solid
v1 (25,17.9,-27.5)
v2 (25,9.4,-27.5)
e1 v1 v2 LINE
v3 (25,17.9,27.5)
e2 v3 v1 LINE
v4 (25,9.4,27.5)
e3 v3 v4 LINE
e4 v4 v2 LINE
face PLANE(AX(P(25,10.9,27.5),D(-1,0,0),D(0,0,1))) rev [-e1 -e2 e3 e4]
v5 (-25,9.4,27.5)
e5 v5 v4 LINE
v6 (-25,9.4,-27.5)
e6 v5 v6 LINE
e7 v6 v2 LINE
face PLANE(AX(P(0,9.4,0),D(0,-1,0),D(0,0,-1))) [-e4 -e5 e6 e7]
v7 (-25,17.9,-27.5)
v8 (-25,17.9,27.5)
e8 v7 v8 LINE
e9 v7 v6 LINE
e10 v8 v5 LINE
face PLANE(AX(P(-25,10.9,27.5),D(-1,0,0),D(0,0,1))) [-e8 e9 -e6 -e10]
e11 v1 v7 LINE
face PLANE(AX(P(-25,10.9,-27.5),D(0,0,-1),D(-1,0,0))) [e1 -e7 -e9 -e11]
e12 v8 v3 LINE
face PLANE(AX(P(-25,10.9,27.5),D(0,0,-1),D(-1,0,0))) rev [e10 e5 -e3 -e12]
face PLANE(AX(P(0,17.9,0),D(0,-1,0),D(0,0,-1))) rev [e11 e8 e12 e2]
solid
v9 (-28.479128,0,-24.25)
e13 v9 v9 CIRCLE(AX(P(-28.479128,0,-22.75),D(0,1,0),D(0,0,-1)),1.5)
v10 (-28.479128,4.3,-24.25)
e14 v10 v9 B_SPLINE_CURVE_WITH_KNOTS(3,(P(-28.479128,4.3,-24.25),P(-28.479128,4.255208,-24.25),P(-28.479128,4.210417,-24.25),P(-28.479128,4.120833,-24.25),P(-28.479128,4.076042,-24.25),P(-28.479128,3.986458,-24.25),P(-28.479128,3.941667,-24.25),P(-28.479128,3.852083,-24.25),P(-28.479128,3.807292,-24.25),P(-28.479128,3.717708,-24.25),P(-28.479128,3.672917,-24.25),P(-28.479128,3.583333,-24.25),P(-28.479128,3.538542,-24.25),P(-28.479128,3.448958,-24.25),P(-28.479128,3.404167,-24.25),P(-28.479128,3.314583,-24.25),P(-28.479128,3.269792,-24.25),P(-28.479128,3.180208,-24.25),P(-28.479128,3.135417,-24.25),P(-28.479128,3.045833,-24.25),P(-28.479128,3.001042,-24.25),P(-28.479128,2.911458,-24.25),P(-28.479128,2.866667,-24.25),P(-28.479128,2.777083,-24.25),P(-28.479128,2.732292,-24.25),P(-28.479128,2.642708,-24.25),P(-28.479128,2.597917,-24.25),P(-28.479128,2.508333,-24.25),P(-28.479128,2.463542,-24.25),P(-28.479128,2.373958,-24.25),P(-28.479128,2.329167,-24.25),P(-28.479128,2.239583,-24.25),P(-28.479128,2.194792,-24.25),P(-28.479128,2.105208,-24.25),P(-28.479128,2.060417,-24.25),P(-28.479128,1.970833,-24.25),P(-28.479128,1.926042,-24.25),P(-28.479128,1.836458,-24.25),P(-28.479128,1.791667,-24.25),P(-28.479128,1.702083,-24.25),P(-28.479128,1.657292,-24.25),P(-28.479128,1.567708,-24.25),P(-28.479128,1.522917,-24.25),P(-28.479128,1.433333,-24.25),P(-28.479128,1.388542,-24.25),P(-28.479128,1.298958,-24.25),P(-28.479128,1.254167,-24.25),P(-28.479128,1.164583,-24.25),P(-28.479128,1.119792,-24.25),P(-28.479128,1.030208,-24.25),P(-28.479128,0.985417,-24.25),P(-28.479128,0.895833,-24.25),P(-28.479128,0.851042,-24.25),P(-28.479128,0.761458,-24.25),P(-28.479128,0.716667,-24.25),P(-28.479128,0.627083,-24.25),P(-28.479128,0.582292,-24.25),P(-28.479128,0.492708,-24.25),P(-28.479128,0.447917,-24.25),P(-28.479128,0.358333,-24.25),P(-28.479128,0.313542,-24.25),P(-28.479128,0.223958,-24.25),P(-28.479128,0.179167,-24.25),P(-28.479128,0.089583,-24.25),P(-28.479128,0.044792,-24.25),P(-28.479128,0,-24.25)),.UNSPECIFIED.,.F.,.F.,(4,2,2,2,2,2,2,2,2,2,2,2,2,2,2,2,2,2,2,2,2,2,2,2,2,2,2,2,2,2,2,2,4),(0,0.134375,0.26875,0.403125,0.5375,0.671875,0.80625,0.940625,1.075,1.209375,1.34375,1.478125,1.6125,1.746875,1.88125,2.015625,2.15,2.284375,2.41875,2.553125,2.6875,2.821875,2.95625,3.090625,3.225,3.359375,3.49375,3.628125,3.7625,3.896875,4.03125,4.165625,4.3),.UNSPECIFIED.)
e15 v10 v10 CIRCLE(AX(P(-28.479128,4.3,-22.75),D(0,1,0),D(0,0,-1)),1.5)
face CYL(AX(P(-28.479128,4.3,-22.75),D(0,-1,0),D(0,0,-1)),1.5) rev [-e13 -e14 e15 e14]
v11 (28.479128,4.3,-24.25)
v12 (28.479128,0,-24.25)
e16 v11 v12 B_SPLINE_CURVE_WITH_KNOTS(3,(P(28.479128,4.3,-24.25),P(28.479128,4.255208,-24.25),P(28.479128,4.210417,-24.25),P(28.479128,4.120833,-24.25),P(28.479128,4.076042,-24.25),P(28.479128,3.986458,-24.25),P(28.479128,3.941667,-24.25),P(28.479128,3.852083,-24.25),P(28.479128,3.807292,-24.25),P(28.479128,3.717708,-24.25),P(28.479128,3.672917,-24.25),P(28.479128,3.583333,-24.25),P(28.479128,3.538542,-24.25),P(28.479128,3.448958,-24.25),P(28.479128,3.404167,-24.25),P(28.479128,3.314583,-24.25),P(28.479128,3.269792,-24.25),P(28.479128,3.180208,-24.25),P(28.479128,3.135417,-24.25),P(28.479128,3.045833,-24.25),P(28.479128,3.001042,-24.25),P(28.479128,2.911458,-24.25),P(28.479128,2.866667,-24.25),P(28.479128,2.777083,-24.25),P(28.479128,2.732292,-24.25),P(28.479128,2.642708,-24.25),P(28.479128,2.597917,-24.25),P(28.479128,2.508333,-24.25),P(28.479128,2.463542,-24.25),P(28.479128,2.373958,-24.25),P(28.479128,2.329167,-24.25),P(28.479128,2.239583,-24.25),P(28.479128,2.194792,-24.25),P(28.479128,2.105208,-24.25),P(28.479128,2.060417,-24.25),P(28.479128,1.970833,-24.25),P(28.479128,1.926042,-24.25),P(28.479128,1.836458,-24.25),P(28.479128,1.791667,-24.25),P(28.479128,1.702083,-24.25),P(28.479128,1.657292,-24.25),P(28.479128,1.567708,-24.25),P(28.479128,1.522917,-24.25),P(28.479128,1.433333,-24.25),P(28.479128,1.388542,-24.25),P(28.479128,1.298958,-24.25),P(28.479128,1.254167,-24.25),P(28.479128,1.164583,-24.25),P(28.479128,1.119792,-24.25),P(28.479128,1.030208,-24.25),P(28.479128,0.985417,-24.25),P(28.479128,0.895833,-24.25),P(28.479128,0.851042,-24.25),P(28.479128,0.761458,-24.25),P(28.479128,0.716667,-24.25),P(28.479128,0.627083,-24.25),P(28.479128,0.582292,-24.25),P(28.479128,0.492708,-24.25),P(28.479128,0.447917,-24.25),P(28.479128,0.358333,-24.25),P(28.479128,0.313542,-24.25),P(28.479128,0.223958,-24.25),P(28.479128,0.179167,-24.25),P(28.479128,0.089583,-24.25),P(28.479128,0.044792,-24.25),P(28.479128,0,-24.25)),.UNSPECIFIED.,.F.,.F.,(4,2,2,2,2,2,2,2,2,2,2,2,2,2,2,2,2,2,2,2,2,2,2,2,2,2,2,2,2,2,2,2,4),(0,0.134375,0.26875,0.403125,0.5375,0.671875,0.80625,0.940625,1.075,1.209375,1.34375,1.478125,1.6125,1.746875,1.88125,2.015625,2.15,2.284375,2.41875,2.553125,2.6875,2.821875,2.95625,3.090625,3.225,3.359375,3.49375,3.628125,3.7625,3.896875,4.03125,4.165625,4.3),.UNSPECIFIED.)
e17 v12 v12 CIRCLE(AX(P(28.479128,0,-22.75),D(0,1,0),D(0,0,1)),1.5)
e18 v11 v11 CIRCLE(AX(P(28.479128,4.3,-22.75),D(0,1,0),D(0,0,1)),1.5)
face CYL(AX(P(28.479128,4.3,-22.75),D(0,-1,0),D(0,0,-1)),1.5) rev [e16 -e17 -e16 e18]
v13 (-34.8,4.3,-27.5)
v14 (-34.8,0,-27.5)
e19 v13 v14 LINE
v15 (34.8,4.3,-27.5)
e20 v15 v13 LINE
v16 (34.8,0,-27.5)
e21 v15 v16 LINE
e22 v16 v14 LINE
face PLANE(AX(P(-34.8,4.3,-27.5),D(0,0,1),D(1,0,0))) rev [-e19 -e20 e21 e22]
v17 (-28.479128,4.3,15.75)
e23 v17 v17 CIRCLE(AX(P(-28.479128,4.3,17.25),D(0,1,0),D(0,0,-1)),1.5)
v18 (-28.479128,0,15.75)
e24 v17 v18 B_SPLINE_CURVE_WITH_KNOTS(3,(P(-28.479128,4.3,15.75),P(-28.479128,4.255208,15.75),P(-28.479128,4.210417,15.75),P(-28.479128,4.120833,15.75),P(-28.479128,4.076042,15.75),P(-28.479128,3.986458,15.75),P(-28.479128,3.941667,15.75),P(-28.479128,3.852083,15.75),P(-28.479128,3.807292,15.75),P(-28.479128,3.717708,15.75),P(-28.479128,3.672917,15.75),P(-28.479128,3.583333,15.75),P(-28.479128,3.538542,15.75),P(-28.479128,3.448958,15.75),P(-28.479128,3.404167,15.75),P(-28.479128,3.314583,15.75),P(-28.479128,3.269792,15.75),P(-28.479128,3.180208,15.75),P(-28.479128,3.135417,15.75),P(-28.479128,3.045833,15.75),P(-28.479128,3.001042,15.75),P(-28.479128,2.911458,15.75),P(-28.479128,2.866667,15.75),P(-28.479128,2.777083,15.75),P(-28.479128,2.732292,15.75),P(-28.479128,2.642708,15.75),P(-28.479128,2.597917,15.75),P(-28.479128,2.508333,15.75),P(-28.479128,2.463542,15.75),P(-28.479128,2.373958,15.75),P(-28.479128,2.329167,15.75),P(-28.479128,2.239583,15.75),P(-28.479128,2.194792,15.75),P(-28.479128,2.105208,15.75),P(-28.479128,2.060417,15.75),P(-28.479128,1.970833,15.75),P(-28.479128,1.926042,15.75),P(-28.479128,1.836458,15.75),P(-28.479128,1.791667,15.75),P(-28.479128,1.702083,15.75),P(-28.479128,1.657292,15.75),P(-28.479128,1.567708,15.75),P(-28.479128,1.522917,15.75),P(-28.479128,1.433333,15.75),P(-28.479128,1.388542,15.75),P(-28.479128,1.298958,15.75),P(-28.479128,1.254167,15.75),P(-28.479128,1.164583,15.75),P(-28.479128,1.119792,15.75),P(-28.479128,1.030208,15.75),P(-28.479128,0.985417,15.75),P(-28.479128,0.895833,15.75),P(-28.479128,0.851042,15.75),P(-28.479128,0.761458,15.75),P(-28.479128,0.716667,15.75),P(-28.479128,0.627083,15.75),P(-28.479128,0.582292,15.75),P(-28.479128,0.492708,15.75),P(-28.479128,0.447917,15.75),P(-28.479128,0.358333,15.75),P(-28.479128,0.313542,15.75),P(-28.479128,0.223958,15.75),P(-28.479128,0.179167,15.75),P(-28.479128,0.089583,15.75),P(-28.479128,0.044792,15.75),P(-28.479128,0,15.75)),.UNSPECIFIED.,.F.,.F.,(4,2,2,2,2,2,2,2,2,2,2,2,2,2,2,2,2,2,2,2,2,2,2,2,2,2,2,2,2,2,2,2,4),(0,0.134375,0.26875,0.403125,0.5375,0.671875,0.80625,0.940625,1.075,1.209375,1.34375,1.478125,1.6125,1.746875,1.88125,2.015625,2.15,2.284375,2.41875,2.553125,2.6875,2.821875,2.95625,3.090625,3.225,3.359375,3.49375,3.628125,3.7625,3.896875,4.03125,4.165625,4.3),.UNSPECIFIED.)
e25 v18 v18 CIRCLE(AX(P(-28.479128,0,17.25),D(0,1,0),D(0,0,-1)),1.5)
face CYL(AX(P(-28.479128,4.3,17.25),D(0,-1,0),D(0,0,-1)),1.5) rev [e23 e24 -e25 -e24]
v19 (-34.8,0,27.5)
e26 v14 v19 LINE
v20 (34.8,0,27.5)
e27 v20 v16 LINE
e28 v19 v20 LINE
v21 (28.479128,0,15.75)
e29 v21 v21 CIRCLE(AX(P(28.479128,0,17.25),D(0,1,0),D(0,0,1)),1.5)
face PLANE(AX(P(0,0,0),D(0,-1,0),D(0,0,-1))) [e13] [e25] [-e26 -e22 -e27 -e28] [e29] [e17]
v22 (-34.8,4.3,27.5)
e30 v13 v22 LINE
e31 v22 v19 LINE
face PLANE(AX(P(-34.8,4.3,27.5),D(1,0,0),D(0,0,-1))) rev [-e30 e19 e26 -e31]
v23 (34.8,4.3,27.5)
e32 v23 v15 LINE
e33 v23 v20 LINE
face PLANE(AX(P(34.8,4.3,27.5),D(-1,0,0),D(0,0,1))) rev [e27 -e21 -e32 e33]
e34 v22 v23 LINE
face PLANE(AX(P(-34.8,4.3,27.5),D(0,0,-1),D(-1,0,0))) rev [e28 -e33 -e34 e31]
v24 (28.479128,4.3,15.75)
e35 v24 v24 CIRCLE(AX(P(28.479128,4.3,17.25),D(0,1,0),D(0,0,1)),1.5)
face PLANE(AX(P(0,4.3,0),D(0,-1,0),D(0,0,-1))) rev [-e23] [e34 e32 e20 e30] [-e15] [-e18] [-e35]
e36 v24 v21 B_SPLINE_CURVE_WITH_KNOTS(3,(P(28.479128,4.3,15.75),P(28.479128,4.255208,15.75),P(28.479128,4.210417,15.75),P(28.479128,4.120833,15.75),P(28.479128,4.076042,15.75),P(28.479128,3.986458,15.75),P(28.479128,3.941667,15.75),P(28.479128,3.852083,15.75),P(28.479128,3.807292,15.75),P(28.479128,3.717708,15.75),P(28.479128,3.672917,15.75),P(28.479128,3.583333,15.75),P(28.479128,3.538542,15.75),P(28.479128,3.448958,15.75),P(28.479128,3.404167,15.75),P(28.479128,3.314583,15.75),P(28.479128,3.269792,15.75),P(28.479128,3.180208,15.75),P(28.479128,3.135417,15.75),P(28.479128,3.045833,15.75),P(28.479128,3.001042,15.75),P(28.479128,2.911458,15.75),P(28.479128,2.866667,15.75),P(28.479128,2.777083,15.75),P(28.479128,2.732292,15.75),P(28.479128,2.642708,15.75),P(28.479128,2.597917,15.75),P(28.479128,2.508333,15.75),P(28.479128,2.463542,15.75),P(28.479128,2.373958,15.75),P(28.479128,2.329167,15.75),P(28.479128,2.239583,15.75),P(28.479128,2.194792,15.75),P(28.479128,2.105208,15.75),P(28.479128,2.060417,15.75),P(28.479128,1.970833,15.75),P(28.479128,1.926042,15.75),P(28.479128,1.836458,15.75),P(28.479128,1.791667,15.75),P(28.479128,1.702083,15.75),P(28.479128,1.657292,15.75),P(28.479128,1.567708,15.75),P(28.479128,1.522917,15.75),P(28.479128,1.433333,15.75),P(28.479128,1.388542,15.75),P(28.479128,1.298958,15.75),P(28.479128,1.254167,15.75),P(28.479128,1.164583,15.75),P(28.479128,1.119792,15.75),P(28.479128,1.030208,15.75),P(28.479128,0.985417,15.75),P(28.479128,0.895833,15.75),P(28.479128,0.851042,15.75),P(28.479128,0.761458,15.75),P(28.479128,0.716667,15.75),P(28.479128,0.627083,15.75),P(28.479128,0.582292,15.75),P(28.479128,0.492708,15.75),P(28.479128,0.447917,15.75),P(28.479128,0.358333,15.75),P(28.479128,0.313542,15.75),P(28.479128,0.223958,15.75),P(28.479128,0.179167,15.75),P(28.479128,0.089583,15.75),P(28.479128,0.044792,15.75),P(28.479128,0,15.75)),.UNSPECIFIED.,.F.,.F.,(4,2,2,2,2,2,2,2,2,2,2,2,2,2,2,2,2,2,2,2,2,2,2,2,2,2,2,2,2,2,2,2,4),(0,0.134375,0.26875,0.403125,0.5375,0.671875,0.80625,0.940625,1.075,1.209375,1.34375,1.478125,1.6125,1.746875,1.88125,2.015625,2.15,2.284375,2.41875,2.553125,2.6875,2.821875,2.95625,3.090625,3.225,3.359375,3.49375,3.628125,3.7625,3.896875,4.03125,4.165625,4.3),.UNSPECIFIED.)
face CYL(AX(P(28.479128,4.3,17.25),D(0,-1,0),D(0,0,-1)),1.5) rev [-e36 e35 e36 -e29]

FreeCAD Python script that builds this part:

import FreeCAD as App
import Part
import Sketcher
from FreeCAD import Vector
Q = App.Units.Quantity

doc = App.newDocument("Part")
body = doc.addObject("PartDesign::Body", "Body")

sketch1 = body.newObject("Sketcher::SketchObject", "Sketch")
sketch1.AttachmentSupport = (doc.getObject("XZ_Plane"), [""])
sketch1.MapMode = "FlatFace"
sketch1.addGeometry([
    Part.LineSegment(Vector(-34.8, -27.5, 0), Vector(-34.8, 27.5, 0)),
    Part.LineSegment(Vector(-34.8, 27.5, 0), Vector(34.8, 27.5, 0)),
    Part.LineSegment(Vector(34.8, 27.5, 0), Vector(34.8, -27.5, 0)),
    Part.LineSegment(Vector(34.8, -27.5, 0), Vector(-34.8, -27.5, 0)),
    Part.Circle(Vector(-28.5, 17.2, 0), Vector(0, 0, 1), 1.5),
    Part.Circle(Vector(28.5, 17.2, 0), Vector(0, 0, 1), 1.5),
    Part.Circle(Vector(-28.5, -22.8, 0), Vector(0, 0, 1), 1.5),
    Part.Circle(Vector(28.5, -22.8, 0), Vector(0, 0, 1), 1.5),
], False)
sketch1.addConstraint([
    Sketcher.Constraint("Coincident", 0, 2, 1, 1),
    Sketcher.Constraint("Coincident", 1, 2, 2, 1),
    Sketcher.Constraint("Coincident", 2, 2, 3, 1),
    Sketcher.Constraint("Coincident", 3, 2, 0, 1),
    Sketcher.Constraint("Vertical", 0),
    Sketcher.Constraint("Horizontal", 1),
    Sketcher.Constraint("Vertical", 2),
    Sketcher.Constraint("Horizontal", 3),
    Sketcher.Constraint("Equal", 4, 5),
    Sketcher.Constraint("Equal", 5, 6),
    Sketcher.Constraint("Equal", 6, 7),
    Sketcher.Constraint("Symmetric", 0, 2, 2, 2, -1, 1),
    Sketcher.Constraint("Symmetric", 4, 3, 5, 3, -2),
    Sketcher.Constraint("Symmetric", 6, 3, 7, 3, -2),
    Sketcher.Constraint("Vertical", 4, 3, 6, 3),
    Sketcher.Constraint("Diameter", 4, Q("3 mm")),
    Sketcher.Constraint("DistanceY", 0, 1, 0, 2, Q("55 mm")),
    Sketcher.Constraint("DistanceX", 1, 1, 1, 2, Q("69.6 mm")),
    Sketcher.Constraint("DistanceY", 6, 3, 4, 3, Q("40 mm")),
    Sketcher.Constraint("DistanceY", -1, 1, 4, 3, Q("17.25 mm")),
    Sketcher.Constraint("DistanceX", 4, 3, -1, 1, Q("28.479128 mm")),
])
pad1 = body.newObject("PartDesign::Pad", "Pad")
pad1.Profile = sketch1
pad1.Length = 4.3
pad1.Reversed = True
body2 = doc.addObject("PartDesign::Body", "Body001")

sketch2 = body2.newObject("Sketcher::SketchObject", "Sketch001")
sketch2.AttachmentSupport = (doc.getObject("XZ_Plane001"), [""])
sketch2.MapMode = "FlatFace"
sketch2.AttachmentOffset = App.Placement(Vector(0, 0, -9.4), App.Rotation())
sketch2.addGeometry([
    Part.LineSegment(Vector(-25, -28, 0), Vector(-25, 28, 0)),
    Part.LineSegment(Vector(-25, 28, 0), Vector(25, 28, 0)),
    Part.LineSegment(Vector(25, 28, 0), Vector(25, -28, 0)),
    Part.LineSegment(Vector(25, -28, 0), Vector(-25, -28, 0)),
], False)
sketch2.addConstraint([
    Sketcher.Constraint("Coincident", 0, 2, 1, 1),
    Sketcher.Constraint("Coincident", 1, 2, 2, 1),
    Sketcher.Constraint("Coincident", 2, 2, 3, 1),
    Sketcher.Constraint("Coincident", 3, 2, 0, 1),
    Sketcher.Constraint("Vertical", 0),
    Sketcher.Constraint("Horizontal", 1),
    Sketcher.Constraint("Vertical", 2),
    Sketcher.Constraint("Horizontal", 3),
    Sketcher.Constraint("Symmetric", 0, 2, 2, 2, -1, 1),
    Sketcher.Constraint("DistanceX", 1, 1, 1, 2, Q("50 mm")),
    Sketcher.Constraint("DistanceY", 0, 1, 0, 2, Q("55 mm")),
])
pad2 = body2.newObject("PartDesign::Pad", "Pad001")
pad2.Profile = sketch2
pad2.Length = 1.5
pad2.Reversed = True

sketch3 = body2.newObject("Sketcher::SketchObject", "Sketch002")
sketch3.AttachmentSupport = (doc.getObject("XZ_Plane001"), [""])
sketch3.MapMode = "FlatFace"
sketch3.AttachmentOffset = App.Placement(Vector(0, 0, -10.9), App.Rotation())
sketch3.addGeometry([
    Part.LineSegment(Vector(-25, -28, 0), Vector(-25, 28, 0)),
    Part.LineSegment(Vector(-25, 28, 0), Vector(25, 28, 0)),
    Part.LineSegment(Vector(25, 28, 0), Vector(25, -28, 0)),
    Part.LineSegment(Vector(25, -28, 0), Vector(-25, -28, 0)),
], False)
sketch3.addConstraint([
    Sketcher.Constraint("Coincident", 0, 2, 1, 1),
    Sketcher.Constraint("Coincident", 1, 2, 2, 1),
    Sketcher.Constraint("Coincident", 2, 2, 3, 1),
    Sketcher.Constraint("Coincident", 3, 2, 0, 1),
    Sketcher.Constraint("Vertical", 0),
    Sketcher.Constraint("Horizontal", 1),
    Sketcher.Constraint("Vertical", 2),
    Sketcher.Constraint("Horizontal", 3),
    Sketcher.Constraint("Symmetric", 0, 2, 2, 2, -1, 1),
    Sketcher.Constraint("DistanceX", 1, 1, 1, 2, Q("50 mm")),
    Sketcher.Constraint("DistanceY", 0, 1, 0, 2, Q("55 mm")),
])
pad3 = body2.newObject("PartDesign::Pad", "Pad002")
pad3.Profile = sketch3
pad3.Length = 7
pad3.Reversed = True

doc.recompute()
